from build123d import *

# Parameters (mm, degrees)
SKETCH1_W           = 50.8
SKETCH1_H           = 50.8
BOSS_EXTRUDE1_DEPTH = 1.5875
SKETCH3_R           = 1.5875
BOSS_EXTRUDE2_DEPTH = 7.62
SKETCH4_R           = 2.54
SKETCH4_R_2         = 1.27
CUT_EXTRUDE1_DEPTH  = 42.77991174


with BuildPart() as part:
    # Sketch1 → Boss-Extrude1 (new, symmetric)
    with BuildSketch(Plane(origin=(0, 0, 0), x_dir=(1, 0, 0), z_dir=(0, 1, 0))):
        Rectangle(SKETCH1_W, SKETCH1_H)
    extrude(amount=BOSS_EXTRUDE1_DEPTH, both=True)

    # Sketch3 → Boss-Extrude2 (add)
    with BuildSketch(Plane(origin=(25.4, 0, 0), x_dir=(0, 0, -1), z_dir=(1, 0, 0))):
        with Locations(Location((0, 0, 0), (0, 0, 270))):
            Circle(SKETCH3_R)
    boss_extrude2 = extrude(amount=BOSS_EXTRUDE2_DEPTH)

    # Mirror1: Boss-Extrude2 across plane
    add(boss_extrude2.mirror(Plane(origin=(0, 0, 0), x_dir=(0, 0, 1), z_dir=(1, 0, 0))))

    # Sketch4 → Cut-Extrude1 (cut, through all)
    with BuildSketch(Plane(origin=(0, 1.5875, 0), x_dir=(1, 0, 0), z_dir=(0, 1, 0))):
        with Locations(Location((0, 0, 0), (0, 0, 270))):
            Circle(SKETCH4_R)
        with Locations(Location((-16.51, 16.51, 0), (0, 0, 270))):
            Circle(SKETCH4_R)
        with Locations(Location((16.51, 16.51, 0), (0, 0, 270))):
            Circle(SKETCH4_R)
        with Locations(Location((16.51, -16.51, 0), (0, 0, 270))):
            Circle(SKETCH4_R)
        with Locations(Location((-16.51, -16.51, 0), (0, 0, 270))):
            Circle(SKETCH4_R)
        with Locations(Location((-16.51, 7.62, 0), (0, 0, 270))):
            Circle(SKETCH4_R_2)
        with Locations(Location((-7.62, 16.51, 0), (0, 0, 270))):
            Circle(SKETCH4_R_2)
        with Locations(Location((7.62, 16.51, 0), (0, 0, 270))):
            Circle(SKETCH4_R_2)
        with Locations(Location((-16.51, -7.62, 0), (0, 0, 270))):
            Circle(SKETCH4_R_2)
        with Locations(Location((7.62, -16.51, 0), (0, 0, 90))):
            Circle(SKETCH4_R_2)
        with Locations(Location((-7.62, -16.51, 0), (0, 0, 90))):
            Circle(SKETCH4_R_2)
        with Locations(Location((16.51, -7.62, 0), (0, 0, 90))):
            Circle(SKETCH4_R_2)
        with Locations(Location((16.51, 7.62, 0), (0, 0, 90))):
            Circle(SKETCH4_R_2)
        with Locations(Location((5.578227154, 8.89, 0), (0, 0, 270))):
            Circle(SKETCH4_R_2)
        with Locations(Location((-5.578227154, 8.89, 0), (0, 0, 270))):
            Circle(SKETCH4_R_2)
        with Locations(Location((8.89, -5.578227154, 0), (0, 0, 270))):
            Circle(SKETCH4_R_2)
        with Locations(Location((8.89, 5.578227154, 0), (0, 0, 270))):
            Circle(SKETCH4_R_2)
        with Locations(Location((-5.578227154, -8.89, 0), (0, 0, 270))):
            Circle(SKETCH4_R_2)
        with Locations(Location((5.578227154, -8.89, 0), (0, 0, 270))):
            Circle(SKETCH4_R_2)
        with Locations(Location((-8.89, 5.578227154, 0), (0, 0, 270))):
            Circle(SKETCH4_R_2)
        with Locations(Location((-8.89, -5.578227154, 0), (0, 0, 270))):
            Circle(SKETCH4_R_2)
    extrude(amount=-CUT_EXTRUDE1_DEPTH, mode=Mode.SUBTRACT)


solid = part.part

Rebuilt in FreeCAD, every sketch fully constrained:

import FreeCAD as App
import Part
import Sketcher
Q = App.Units.Quantity

doc = App.newDocument("Part")
body = doc.addObject("PartDesign::Body", "Body")

# Sketch on XZ plane
sketch1 = body.newObject("Sketcher::SketchObject", "Sketch")
sketch1.AttachmentSupport = (doc.getObject("XZ_Plane"), [""])
sketch1.MapMode = "FlatFace"
sketch1.addGeometry(Part.LineSegment(App.Vector(-25, -25, 0), App.Vector(-25, 25, 0)), False)
sketch1.addGeometry(Part.LineSegment(App.Vector(-25, 25, 0), App.Vector(25, 25, 0)), False)
sketch1.addGeometry(Part.LineSegment(App.Vector(25, 25, 0), App.Vector(25, -25, 0)), False)
sketch1.addGeometry(Part.LineSegment(App.Vector(25, -25, 0), App.Vector(-25, -25, 0)), False)
sketch1.addConstraint(Sketcher.Constraint("Coincident", 0, 2, 1, 1))
sketch1.addConstraint(Sketcher.Constraint("Coincident", 1, 2, 2, 1))
sketch1.addConstraint(Sketcher.Constraint("Coincident", 2, 2, 3, 1))
sketch1.addConstraint(Sketcher.Constraint("Coincident", 3, 2, 0, 1))
sketch1.addConstraint(Sketcher.Constraint("Vertical", 0))
sketch1.addConstraint(Sketcher.Constraint("Horizontal", 1))
sketch1.addConstraint(Sketcher.Constraint("Vertical", 2))
sketch1.addConstraint(Sketcher.Constraint("Horizontal", 3))
sketch1.addConstraint(Sketcher.Constraint("Symmetric", 0, 2, 2, 2, -1, 1))
sketch1.addConstraint(Sketcher.Constraint("Equal", 3, 0))
sketch1.addConstraint(Sketcher.Constraint("DistanceX", 1, 1, 1, 2, Q("2 in")))
pad1 = body.newObject("PartDesign::Pad", "Pad")
pad1.Profile = sketch1
pad1.Length = Q("0.125 in")
pad1.Midplane = True

# Sketch on YZ plane
sketch2 = body.newObject("Sketcher::SketchObject", "Sketch001")
sketch2.AttachmentSupport = (doc.getObject("YZ_Plane"), [""])
sketch2.MapMode = "FlatFace"
sketch2.AttachmentOffset = App.Placement(App.Vector(0, 0, 1 * 25.4), App.Rotation())
sketch2.addGeometry(Part.Circle(App.Vector(0, 0, 0), App.Vector(0, 0, 1), 1.6), False)
sketch2.addConstraint(Sketcher.Constraint("Coincident", 0, 3, -1, 1))
sketch2.addConstraint(Sketcher.Constraint("Diameter", 0, Q("0.125 in")))
pad2 = body.newObject("PartDesign::Pad", "Pad001")
pad2.Profile = sketch2
pad2.Length = Q("0.3 in")
doc.recompute()

mirrored = body.newObject("PartDesign::Mirrored", "Mirrored")
mirrored.Originals = [pad2]
mirrored.MirrorPlane = (doc.getObject("YZ_Plane"), [""])
body.Tip = mirrored

# Sketch on XZ plane
sketch3 = body.newObject("Sketcher::SketchObject", "Sketch002")
sketch3.AttachmentSupport = (doc.getObject("XZ_Plane"), [""])
sketch3.MapMode = "FlatFace"
sketch3.AttachmentOffset = App.Placement(App.Vector(0, 0, -0.0625 * 25.4), App.Rotation())
sketch3.addGeometry(Part.Circle(App.Vector(0, 0, 0), App.Vector(0, 0, 1), 2.5), False)
sketch3.addGeometry(Part.Circle(App.Vector(-16.5, -16.5, 0), App.Vector(0, 0, 1), 2.5), False)
sketch3.addGeometry(Part.Circle(App.Vector(16.5, -16.5, 0), App.Vector(0, 0, 1), 2.5), False)
sketch3.addGeometry(Part.Circle(App.Vector(16.5, 16.5, 0), App.Vector(0, 0, 1), 2.5), False)
sketch3.addGeometry(Part.Circle(App.Vector(-16.5, 16.5, 0), App.Vector(0, 0, 1), 2.5), False)
sketch3.addGeometry(Part.Circle(App.Vector(-16.5, -7.6, 0), App.Vector(0, 0, 1), 1.3), False)
sketch3.addGeometry(Part.Circle(App.Vector(-7.6, -16.5, 0), App.Vector(0, 0, 1), 1.3), False)
sketch3.addGeometry(Part.Circle(App.Vector(7.6, -16.5, 0), App.Vector(0, 0, 1), 1.3), False)
sketch3.addGeometry(Part.Circle(App.Vector(-16.5, 7.6, 0), App.Vector(0, 0, 1), 1.3), False)
sketch3.addGeometry(Part.Circle(App.Vector(7.6, 16.5, 0), App.Vector(0, 0, 1), 1.3), False)
sketch3.addGeometry(Part.Circle(App.Vector(-7.6, 16.5, 0), App.Vector(0, 0, 1), 1.3), False)
sketch3.addGeometry(Part.Circle(App.Vector(16.5, 7.6, 0), App.Vector(0, 0, 1), 1.3), False)
sketch3.addGeometry(Part.Circle(App.Vector(16.5, -7.6, 0), App.Vector(0, 0, 1), 1.3), False)
sketch3.addGeometry(Part.Circle(App.Vector(5.6, -8.9, 0), App.Vector(0, 0, 1), 1.3), False)
sketch3.addGeometry(Part.Circle(App.Vector(-5.6, -8.9, 0), App.Vector(0, 0, 1), 1.3), False)
sketch3.addGeometry(Part.Circle(App.Vector(8.9, 5.6, 0), App.Vector(0, 0, 1), 1.3), False)
sketch3.addGeometry(Part.Circle(App.Vector(8.9, -5.6, 0), App.Vector(0, 0, 1), 1.3), False)
sketch3.addGeometry(Part.Circle(App.Vector(-5.6, 8.9, 0), App.Vector(0, 0, 1), 1.3), False)
sketch3.addGeometry(Part.Circle(App.Vector(5.6, 8.9, 0), App.Vector(0, 0, 1), 1.3), False)
sketch3.addGeometry(Part.Circle(App.Vector(-8.9, -5.6, 0), App.Vector(0, 0, 1), 1.3), False)
sketch3.addGeometry(Part.Circle(App.Vector(-8.9, 5.6, 0), App.Vector(0, 0, 1), 1.3), False)
sketch3.addConstraint(Sketcher.Constraint("Coincident", 0, 3, -1, 1))
sketch3.addConstraint(Sketcher.Constraint("Equal", 0, 1))
sketch3.addConstraint(Sketcher.Constraint("Equal", 1, 2))
sketch3.addConstraint(Sketcher.Constraint("Equal", 2, 3))
sketch3.addConstraint(Sketcher.Constraint("Equal", 3, 4))
sketch3.addConstraint(Sketcher.Constraint("Equal", 5, 6))
sketch3.addConstraint(Sketcher.Constraint("Equal", 6, 7))
sketch3.addConstraint(Sketcher.Constraint("Equal", 7, 8))
sketch3.addConstraint(Sketcher.Constraint("Equal", 8, 9))
sketch3.addConstraint(Sketcher.Constraint("Equal", 9, 10))
sketch3.addConstraint(Sketcher.Constraint("Equal", 10, 11))
sketch3.addConstraint(Sketcher.Constraint("Equal", 11, 12))
sketch3.addConstraint(Sketcher.Constraint("Equal", 12, 13))
sketch3.addConstraint(Sketcher.Constraint("Equal", 13, 14))
sketch3.addConstraint(Sketcher.Constraint("Equal", 14, 15))
sketch3.addConstraint(Sketcher.Constraint("Equal", 15, 16))
sketch3.addConstraint(Sketcher.Constraint("Equal", 16, 17))
sketch3.addConstraint(Sketcher.Constraint("Equal", 17, 18))
sketch3.addConstraint(Sketcher.Constraint("Equal", 18, 19))
sketch3.addConstraint(Sketcher.Constraint("Equal", 19, 20))
sketch3.addConstraint(Sketcher.Constraint("Symmetric", 1, 3, 3, 3, -1, 1))
sketch3.addConstraint(Sketcher.Constraint("Symmetric", 2, 3, 4, 3, -1, 1))
sketch3.addConstraint(Sketcher.Constraint("Symmetric", 6, 3, 9, 3, -1, 1))
sketch3.addConstraint(Sketcher.Constraint("Symmetric", 7, 3, 10, 3, -1, 1))
sketch3.addConstraint(Sketcher.Constraint("Symmetric", 5, 3, 11, 3, -1, 1))
sketch3.addConstraint(Sketcher.Constraint("Symmetric", 8, 3, 12, 3, -1, 1))
sketch3.addConstraint(Sketcher.Constraint("Symmetric", 13, 3, 17, 3, -1, 1))
sketch3.addConstraint(Sketcher.Constraint("Symmetric", 14, 3, 18, 3, -1, 1))
sketch3.addConstraint(Sketcher.Constraint("Symmetric", 15, 3, 19, 3, -1, 1))
sketch3.addConstraint(Sketcher.Constraint("Symmetric", 16, 3, 20, 3, -1, 1))
sketch3.addConstraint(Sketcher.Constraint("Symmetric", 1, 3, 2, 3, -2))
sketch3.addConstraint(Sketcher.Constraint("Symmetric", 6, 3, 7, 3, -2))
sketch3.addConstraint(Sketcher.Constraint("Symmetric", 8, 3, 11, 3, -2))
sketch3.addConstraint(Sketcher.Constraint("Symmetric", 13, 3, 14, 3, -2))
sketch3.addConstraint(Sketcher.Constraint("Symmetric", 16, 3, 19, 3, -2))
sketch3.addConstraint(Sketcher.Constraint("Horizontal", 2, 3, 6, 3))
sketch3.addConstraint(Sketcher.Constraint("Vertical", 4, 3, 5, 3))
sketch3.addConstraint(Sketcher.Constraint("Diameter", 0, Q("0.2 in")))
sketch3.addConstraint(Sketcher.Constraint("Diameter", 5, Q("0.1 in")))
sketch3.addConstraint(Sketcher.Constraint("DistanceY", 5, 3, -1, 1, Q("0.3 in")))
sketch3.addConstraint(Sketcher.Constraint("DistanceX", 6, 3, -1, 1, Q("0.3 in")))
sketch3.addConstraint(Sketcher.Constraint("DistanceX", 1, 3, 2, 3, Q("1.3 in")))
sketch3.addConstraint(Sketcher.Constraint("DistanceY", 2, 3, 3, 3, Q("1.3 in")))
sketch3.addConstraint(Sketcher.Constraint("DistanceY", 7, 3, 13, 3, Q("0.3 in")))
sketch3.addConstraint(Sketcher.Constraint("DistanceX", 15, 3, 11, 3, Q("0.3 in")))
sketch3.addConstraint(Sketcher.Constraint("DistanceX", -1, 1, 13, 3, Q("5.578227 mm")))
sketch3.addConstraint(Sketcher.Constraint("DistanceY", -1, 1, 15, 3, Q("5.578227 mm")))
pocket1 = body.newObject("PartDesign::Pocket", "Pocket")
pocket1.Profile = sketch3
pocket1.Type = "ThroughAll"
pocket1.Reversed = True

doc.recompute()
